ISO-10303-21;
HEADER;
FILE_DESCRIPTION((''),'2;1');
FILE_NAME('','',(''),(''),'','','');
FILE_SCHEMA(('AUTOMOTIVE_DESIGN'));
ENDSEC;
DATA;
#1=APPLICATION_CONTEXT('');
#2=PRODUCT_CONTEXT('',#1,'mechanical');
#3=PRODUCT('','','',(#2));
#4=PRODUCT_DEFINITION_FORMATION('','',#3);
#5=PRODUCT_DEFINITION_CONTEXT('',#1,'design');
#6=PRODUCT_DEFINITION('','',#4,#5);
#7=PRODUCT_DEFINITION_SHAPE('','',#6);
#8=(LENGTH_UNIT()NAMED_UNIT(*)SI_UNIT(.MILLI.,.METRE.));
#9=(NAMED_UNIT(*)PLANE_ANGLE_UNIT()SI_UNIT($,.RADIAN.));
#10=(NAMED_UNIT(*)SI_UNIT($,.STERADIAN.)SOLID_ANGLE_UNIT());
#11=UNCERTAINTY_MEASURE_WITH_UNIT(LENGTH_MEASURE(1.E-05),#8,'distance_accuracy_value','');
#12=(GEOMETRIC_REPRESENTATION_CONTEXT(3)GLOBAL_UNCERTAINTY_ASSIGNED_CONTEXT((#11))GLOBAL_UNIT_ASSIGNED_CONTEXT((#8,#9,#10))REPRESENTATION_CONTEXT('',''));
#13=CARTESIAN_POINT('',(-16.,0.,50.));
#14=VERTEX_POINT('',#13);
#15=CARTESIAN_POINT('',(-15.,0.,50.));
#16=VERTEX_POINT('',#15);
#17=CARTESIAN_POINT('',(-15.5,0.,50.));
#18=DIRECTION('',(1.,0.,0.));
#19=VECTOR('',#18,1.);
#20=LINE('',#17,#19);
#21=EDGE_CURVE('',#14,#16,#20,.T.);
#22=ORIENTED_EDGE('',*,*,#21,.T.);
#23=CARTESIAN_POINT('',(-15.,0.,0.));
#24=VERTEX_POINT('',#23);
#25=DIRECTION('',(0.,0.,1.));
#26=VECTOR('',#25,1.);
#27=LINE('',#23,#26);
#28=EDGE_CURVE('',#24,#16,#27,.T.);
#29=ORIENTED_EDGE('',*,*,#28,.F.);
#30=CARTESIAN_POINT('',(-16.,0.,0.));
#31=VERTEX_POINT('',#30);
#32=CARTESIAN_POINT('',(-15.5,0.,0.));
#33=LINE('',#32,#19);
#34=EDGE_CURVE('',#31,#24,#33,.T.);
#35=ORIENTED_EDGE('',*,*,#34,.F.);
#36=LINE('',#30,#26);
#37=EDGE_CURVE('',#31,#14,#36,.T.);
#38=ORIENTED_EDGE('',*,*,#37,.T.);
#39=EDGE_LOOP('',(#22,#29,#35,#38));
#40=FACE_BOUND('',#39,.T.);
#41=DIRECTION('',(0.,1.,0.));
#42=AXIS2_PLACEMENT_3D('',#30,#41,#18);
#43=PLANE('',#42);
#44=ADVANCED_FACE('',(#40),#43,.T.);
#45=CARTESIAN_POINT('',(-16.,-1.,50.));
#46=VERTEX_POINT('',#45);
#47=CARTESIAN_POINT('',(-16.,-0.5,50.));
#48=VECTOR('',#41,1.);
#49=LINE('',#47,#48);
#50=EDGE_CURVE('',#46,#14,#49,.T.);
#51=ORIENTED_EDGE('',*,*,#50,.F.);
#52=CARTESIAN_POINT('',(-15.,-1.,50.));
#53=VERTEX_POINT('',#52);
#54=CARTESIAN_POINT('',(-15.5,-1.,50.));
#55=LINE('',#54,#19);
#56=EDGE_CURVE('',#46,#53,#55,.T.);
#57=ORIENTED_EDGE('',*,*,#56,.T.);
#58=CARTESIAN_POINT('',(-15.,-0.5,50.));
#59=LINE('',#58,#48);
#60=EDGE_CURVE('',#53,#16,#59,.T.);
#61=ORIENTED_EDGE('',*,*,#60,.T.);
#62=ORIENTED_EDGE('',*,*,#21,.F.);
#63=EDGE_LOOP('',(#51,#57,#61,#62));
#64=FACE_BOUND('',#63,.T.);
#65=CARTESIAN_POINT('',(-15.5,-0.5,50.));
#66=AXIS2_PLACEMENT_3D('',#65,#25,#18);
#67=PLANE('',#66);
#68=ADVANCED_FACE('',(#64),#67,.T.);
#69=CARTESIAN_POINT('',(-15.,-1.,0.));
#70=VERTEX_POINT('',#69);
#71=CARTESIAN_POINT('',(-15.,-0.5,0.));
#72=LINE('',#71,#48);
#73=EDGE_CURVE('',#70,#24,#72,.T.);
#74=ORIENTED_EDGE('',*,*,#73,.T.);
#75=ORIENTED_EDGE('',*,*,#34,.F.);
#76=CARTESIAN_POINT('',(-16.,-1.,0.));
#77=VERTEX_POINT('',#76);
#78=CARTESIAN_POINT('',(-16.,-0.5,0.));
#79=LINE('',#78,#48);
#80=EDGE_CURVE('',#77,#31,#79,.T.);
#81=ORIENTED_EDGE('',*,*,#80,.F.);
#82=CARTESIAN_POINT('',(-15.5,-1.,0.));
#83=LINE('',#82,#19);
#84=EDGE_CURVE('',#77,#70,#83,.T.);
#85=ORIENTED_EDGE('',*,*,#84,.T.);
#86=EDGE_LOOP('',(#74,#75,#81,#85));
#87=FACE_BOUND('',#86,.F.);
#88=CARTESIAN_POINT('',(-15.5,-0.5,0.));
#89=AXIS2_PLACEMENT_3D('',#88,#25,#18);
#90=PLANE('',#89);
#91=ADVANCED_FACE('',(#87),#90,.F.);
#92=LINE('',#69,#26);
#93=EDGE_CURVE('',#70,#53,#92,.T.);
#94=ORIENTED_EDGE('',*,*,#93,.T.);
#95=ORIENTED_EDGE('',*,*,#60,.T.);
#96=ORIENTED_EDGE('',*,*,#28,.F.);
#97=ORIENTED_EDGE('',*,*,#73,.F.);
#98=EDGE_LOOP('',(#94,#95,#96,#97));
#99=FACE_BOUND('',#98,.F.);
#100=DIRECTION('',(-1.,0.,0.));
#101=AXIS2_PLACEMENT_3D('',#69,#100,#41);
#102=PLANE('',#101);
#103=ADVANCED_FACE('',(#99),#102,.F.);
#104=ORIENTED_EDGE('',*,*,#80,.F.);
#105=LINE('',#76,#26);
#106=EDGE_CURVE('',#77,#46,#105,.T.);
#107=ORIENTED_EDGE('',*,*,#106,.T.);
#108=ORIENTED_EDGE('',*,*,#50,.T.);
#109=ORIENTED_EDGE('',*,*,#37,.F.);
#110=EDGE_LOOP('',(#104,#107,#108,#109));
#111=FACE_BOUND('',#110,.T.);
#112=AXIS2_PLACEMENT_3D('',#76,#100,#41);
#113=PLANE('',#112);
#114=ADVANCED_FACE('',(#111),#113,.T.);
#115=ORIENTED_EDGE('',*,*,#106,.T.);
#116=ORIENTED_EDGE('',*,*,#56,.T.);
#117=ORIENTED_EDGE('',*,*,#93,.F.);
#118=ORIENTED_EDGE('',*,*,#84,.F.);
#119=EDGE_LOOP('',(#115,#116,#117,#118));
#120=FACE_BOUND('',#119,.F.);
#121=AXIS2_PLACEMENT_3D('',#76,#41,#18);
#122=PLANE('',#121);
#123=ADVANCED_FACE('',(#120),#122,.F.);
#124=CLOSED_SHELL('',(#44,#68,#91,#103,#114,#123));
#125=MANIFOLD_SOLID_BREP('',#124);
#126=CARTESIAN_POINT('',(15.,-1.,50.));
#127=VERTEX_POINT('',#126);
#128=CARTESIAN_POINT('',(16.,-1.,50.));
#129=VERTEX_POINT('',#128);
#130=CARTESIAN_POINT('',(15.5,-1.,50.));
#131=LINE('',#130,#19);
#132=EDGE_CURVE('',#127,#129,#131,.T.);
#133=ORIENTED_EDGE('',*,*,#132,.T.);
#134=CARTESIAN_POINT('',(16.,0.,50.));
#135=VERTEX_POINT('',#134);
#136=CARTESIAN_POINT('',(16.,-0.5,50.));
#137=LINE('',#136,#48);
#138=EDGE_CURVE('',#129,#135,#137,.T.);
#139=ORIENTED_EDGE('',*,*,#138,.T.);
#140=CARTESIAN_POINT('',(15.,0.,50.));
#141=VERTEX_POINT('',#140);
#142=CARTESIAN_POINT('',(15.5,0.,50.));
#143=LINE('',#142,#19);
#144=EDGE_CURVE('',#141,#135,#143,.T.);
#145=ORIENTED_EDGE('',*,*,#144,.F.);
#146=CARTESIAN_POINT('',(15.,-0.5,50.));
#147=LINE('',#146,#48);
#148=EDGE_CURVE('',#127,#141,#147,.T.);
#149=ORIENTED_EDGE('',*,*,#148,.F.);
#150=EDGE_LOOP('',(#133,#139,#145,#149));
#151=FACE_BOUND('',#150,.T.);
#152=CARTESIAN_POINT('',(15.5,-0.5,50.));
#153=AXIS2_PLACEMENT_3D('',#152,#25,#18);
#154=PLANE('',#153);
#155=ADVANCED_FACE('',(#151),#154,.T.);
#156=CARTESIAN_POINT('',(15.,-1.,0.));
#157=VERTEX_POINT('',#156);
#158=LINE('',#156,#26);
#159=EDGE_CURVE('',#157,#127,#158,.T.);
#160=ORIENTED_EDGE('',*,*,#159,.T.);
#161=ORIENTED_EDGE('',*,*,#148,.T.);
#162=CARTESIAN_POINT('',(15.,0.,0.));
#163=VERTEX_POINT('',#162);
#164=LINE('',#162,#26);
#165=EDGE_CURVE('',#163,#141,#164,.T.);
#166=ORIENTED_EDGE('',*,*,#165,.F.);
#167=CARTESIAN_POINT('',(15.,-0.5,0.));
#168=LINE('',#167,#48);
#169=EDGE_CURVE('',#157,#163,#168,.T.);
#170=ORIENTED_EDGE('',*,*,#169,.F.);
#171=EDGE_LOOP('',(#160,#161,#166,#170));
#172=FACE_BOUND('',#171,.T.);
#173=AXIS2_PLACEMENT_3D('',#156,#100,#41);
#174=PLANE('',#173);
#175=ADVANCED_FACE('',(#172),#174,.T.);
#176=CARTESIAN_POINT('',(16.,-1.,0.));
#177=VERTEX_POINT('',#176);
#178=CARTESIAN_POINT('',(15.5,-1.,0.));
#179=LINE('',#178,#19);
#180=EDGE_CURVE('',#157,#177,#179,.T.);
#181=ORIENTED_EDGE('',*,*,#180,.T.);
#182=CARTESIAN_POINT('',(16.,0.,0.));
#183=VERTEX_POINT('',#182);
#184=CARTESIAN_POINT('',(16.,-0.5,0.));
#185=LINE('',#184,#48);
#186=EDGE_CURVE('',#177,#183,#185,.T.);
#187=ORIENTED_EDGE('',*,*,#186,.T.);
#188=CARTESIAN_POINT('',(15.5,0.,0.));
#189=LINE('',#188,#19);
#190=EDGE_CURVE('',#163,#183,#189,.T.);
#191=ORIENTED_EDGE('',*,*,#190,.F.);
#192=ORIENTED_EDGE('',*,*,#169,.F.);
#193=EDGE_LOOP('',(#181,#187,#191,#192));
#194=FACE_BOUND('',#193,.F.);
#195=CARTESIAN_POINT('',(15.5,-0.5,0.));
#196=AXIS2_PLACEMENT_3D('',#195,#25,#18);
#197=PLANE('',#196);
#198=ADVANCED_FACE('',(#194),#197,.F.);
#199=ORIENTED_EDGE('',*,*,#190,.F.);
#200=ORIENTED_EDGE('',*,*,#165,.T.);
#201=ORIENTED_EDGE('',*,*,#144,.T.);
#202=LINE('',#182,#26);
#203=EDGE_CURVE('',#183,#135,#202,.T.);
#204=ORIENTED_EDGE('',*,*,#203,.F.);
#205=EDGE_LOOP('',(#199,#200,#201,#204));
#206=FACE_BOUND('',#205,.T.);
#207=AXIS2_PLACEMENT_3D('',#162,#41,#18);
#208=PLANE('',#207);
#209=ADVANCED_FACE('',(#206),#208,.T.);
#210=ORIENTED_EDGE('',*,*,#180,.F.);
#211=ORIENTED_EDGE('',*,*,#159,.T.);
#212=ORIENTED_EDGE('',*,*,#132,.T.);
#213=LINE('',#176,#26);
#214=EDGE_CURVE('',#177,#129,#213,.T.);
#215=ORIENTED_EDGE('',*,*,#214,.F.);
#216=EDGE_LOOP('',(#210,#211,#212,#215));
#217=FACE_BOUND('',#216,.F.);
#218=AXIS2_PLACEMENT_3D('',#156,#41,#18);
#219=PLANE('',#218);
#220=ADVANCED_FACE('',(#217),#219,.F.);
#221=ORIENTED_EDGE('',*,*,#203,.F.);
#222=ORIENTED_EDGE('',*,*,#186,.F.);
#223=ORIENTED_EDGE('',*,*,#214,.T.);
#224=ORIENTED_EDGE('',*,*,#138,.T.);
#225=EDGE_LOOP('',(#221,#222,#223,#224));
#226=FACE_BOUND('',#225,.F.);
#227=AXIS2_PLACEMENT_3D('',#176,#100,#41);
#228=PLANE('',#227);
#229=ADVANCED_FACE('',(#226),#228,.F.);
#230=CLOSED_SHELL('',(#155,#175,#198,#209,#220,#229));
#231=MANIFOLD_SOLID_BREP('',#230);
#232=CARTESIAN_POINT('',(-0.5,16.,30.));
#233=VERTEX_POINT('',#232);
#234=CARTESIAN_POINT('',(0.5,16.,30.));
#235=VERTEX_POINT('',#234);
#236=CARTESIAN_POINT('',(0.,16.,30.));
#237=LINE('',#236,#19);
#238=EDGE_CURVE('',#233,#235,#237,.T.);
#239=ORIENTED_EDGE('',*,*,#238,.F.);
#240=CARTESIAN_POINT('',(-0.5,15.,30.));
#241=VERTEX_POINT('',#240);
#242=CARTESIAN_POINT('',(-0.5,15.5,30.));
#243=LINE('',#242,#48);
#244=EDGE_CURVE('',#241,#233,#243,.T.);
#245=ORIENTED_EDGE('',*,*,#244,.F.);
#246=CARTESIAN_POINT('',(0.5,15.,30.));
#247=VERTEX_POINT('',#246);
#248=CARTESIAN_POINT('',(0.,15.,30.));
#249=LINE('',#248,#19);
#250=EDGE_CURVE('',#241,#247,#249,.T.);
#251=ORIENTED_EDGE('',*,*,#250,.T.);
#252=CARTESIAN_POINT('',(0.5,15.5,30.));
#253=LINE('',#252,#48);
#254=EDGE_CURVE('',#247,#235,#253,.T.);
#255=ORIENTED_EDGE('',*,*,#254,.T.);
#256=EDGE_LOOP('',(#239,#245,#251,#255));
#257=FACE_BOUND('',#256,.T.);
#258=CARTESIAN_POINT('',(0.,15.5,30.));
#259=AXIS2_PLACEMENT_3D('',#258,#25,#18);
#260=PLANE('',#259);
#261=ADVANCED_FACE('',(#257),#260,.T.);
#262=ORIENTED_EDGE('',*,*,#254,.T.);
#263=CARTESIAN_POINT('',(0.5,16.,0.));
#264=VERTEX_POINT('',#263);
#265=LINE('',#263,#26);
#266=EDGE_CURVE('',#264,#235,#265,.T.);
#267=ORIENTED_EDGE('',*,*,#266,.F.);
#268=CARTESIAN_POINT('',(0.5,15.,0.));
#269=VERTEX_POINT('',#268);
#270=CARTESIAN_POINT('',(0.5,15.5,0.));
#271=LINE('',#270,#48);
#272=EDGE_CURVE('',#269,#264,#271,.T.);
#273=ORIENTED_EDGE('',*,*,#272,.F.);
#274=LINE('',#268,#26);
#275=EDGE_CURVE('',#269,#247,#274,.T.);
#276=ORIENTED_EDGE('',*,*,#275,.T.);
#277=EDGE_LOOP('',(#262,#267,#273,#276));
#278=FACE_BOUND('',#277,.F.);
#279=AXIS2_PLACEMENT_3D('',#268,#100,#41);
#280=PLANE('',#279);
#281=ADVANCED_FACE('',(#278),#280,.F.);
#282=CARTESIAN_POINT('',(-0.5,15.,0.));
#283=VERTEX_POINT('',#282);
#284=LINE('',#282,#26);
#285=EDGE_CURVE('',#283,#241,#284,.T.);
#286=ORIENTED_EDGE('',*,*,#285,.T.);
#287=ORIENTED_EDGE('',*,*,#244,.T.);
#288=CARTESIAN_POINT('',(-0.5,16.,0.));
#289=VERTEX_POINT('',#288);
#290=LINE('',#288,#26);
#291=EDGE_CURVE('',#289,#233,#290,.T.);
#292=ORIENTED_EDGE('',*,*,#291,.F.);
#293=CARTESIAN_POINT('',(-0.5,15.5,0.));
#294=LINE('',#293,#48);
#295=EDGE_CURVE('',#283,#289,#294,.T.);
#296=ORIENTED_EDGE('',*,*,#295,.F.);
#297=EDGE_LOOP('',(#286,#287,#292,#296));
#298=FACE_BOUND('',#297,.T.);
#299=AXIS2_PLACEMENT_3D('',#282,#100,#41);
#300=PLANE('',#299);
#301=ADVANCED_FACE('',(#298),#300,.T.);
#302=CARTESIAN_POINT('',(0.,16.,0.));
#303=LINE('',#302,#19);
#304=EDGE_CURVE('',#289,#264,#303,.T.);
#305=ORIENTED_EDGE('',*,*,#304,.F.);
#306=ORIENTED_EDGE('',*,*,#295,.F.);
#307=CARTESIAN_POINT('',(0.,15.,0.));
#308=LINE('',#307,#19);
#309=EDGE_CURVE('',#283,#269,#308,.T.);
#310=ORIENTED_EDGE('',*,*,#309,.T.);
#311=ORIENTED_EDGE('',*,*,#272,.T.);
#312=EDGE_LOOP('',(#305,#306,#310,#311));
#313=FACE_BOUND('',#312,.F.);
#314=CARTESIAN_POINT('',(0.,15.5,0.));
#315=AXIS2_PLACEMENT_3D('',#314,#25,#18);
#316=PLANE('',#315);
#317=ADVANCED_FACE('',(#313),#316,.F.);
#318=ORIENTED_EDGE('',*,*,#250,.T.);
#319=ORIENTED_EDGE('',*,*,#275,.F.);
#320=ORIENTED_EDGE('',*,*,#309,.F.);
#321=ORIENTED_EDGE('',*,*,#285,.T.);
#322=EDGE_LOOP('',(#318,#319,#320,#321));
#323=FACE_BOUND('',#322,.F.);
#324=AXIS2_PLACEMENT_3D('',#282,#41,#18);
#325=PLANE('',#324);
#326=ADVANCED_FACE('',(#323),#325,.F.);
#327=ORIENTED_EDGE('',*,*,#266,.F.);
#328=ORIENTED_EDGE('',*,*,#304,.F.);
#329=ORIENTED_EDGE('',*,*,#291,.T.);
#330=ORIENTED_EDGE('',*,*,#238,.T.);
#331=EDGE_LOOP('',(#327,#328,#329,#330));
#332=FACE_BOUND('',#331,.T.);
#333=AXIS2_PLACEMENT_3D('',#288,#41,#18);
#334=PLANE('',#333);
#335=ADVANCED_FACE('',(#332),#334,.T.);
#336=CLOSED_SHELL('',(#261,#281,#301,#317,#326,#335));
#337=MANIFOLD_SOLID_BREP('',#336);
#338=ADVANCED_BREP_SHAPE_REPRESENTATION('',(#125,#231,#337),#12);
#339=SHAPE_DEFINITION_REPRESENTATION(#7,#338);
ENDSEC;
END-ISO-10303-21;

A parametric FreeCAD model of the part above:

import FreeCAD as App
import Part
import Sketcher
from FreeCAD import Vector
Q = App.Units.Quantity


def add_polygon(sketch, points):
    """Adds a closed chain of lines whose ends are joined by coincident constraints."""
    first, n = sketch.GeometryCount, len(points)
    for a, b in zip(points, points[1:] + points[:1]):
        sketch.addGeometry(Part.LineSegment(App.Vector(*a, 0), App.Vector(*b, 0)), False)
    for i in range(n):
        sketch.addConstraint(Sketcher.Constraint("Coincident", first + i, 2, first + (i + 1) % n, 1))

doc = App.newDocument("Part")
body = doc.addObject("PartDesign::Body", "Body")
body.AllowCompound = True

# Sketch on XY plane
sketch1 = body.newObject("Sketcher::SketchObject", "Sketch")
sketch1.AttachmentSupport = (doc.getObject("XY_Plane"), [""])
sketch1.MapMode = "FlatFace"
add_polygon(sketch1, [(15, 0), (15, -1), (16, -1), (16, 0)])  # lines 0-3
add_polygon(sketch1, [(-16, 0), (-16, -1), (-15, -1), (-15, 0)])  # lines 4-7
sketch1.addConstraint([
    Sketcher.Constraint("Vertical", 0),
    Sketcher.Constraint("Horizontal", 1),
    Sketcher.Constraint("Vertical", 2),
    Sketcher.Constraint("Horizontal", 3),
    Sketcher.Constraint("Vertical", 4),
    Sketcher.Constraint("Horizontal", 5),
    Sketcher.Constraint("Vertical", 6),
    Sketcher.Constraint("Horizontal", 7),
    Sketcher.Constraint("Symmetric", 3, 2, 6, 2, -1, 1),
    Sketcher.Constraint("Symmetric", 1, 2, 4, 2, -2),
    Sketcher.Constraint("PointOnObject", 2, 2, -1),
    Sketcher.Constraint("Equal", 7, 0),
    Sketcher.Constraint("DistanceX", 1, 1, 1, 2, Q("1 mm")),
    Sketcher.Constraint("DistanceX", -1, 1, 0, 2, Q("15 mm")),
])
pad1 = body.newObject("PartDesign::Pad", "Pad")
pad1.Profile = sketch1
pad1.Length = 50
body2 = doc.addObject("PartDesign::Body", "Body001")

# Sketch on XY plane
sketch2 = body2.newObject("Sketcher::SketchObject", "Sketch001")
sketch2.AttachmentSupport = (doc.getObject("XY_Plane001"), [""])
sketch2.MapMode = "FlatFace"
add_polygon(sketch2, [(-0.5, 16), (-0.5, 15), (0.5, 15), (0.5, 16)])  # lines 0-3
sketch2.addConstraint([
    Sketcher.Constraint("Vertical", 0),
    Sketcher.Constraint("Horizontal", 1),
    Sketcher.Constraint("Vertical", 2),
    Sketcher.Constraint("Horizontal", 3),
    Sketcher.Constraint("Equal", 3, 0),
    Sketcher.Constraint("DistanceX", 1, 1, 1, 2, Q("1 mm")),
    Sketcher.Constraint("DistanceY", -1, 1, 0, 2, Q("15 mm")),
    Sketcher.Constraint("DistanceX", 0, 2, -1, 1, Q("0.5 mm")),
])
pad2 = body2.newObject("PartDesign::Pad", "Pad001")
pad2.Profile = sketch2
pad2.Length = 30

doc.recompute()
